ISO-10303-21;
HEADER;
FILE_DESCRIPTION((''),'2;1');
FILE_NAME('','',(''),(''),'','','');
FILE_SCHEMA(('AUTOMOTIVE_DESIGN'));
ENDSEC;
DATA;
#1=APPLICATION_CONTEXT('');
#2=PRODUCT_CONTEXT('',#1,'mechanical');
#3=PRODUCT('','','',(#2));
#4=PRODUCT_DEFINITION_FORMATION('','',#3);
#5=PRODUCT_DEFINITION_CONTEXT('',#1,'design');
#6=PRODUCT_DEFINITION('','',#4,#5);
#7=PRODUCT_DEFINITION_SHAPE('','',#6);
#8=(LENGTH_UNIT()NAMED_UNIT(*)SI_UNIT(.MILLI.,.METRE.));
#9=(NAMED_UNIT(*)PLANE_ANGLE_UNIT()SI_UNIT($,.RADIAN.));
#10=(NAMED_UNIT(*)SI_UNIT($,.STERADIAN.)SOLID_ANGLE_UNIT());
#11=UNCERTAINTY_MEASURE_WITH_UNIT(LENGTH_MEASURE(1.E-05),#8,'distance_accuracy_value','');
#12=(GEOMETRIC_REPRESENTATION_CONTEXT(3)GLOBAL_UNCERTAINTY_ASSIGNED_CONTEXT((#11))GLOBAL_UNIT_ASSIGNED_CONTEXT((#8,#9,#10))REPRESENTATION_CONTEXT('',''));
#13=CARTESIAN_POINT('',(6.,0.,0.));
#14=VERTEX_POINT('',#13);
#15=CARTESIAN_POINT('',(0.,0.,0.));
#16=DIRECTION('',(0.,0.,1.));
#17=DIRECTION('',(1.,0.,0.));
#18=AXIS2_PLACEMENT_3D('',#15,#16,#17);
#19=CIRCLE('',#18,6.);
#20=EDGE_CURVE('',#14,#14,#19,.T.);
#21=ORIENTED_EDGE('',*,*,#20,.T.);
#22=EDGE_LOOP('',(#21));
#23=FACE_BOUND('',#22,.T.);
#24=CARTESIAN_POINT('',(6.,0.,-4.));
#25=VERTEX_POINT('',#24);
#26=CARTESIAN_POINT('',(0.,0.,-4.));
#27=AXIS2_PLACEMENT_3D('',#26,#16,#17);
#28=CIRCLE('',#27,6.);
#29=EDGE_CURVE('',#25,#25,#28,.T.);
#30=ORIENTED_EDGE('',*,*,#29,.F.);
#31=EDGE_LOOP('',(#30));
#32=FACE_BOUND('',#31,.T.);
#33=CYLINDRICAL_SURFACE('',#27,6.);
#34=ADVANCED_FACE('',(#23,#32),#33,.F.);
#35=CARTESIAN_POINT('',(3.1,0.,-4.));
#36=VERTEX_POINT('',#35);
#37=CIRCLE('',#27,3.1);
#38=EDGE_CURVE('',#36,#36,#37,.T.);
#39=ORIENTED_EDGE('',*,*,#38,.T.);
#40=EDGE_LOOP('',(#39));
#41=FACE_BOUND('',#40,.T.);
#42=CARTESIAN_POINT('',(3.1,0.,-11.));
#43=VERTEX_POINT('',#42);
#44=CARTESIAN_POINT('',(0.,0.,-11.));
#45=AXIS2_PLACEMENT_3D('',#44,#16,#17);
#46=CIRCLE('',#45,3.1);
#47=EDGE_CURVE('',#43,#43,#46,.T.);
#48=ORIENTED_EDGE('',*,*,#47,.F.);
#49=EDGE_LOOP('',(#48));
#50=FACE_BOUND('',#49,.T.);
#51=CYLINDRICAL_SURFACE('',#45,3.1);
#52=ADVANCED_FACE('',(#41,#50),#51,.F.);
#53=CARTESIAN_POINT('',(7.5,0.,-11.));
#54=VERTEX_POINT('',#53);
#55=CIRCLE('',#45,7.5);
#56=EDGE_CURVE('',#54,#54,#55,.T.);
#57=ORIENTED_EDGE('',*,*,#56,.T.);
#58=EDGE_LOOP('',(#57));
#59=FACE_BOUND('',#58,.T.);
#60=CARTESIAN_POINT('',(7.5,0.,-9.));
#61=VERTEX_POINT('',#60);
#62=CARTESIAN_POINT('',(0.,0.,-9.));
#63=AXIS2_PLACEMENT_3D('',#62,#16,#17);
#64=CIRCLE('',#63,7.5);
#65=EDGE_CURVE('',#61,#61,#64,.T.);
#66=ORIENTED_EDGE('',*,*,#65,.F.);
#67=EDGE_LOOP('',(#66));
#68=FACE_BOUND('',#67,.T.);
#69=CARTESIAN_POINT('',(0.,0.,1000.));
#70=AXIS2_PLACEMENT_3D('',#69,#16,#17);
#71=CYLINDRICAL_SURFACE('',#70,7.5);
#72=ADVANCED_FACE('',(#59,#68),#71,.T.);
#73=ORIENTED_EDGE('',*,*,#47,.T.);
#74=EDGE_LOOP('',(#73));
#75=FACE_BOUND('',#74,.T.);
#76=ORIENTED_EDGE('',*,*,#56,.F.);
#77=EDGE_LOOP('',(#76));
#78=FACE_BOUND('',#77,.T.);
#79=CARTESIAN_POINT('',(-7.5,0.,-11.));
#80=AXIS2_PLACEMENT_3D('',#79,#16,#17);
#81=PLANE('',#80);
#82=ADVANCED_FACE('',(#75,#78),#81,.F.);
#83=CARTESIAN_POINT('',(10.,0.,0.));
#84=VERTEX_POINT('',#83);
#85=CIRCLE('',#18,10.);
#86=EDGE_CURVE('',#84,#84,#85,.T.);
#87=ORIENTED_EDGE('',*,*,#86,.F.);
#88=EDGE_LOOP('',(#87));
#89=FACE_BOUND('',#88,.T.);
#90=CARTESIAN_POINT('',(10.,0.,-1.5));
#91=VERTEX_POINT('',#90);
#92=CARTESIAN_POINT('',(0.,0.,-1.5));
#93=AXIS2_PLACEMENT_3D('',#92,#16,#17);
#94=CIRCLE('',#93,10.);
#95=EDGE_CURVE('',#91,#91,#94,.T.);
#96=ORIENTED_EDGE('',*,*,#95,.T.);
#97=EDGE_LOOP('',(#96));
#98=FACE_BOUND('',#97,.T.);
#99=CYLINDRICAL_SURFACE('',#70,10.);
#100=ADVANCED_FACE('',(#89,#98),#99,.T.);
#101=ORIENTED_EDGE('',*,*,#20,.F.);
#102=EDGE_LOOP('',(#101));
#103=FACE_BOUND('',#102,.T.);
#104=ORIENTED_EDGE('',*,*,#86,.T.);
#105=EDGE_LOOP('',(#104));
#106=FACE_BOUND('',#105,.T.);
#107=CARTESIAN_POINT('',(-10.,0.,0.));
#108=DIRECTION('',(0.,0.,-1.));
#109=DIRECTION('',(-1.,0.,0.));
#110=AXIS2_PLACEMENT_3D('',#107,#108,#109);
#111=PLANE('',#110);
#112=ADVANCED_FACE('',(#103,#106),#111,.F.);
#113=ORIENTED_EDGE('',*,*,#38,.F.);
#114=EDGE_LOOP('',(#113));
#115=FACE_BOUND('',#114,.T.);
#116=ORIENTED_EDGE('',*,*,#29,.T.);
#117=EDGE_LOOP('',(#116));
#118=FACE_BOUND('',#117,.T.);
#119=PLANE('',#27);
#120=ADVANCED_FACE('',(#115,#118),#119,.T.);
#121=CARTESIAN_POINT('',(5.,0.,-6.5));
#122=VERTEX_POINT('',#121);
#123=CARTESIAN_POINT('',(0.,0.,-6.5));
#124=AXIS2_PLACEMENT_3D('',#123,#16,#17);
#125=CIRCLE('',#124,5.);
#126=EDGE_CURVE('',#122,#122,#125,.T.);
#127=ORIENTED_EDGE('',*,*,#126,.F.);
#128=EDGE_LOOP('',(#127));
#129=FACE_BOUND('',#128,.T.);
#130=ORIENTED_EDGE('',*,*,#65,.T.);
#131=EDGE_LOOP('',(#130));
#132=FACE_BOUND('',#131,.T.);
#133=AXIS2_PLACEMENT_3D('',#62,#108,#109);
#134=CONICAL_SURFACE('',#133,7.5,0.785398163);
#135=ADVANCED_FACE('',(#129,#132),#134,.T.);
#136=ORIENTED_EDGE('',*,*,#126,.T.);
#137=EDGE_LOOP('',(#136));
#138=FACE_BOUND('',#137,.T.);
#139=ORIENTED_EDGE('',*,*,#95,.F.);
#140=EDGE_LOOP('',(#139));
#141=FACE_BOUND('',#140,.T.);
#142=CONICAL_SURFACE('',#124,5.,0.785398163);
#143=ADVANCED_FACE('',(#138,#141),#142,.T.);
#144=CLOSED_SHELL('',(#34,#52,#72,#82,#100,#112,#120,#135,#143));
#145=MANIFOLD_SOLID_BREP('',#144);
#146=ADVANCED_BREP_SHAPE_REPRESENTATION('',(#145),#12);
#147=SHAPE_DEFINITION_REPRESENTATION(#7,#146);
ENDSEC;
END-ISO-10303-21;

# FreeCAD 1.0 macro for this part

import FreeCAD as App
import Part
import Sketcher
Q = App.Units.Quantity

doc = App.newDocument("Part")
body = doc.addObject("PartDesign::Body", "Body")

# Sketch on XZ plane
sketch1 = doc.addObject("Sketcher::SketchObject", "Sketch")
body.addObject(sketch1)
sketch1.AttachmentSupport = (doc.XZ_Plane, [""])
sketch1.MapMode = "FlatFace"
sketch1.addGeometry(Part.LineSegment(App.Vector(-7.5, -9, 0), App.Vector(-5, -6.5, 0)), False)
sketch1.addGeometry(Part.LineSegment(App.Vector(-5, -6.5, 0), App.Vector(-10, -1.5, 0)), False)
sketch1.addGeometry(Part.LineSegment(App.Vector(-10, -1.5, 0), App.Vector(-10, 0, 0)), False)
sketch1.addGeometry(Part.LineSegment(App.Vector(-10, 0, 0), App.Vector(0, 0, 0)), False)
sketch1.addGeometry(Part.LineSegment(App.Vector(0, 0, 0), App.Vector(0, -11, 0)), False)
sketch1.addGeometry(Part.LineSegment(App.Vector(0, -11, 0), App.Vector(-7.5, -11, 0)), False)
sketch1.addGeometry(Part.LineSegment(App.Vector(-7.5, -11, 0), App.Vector(-7.5, -9, 0)), False)
sketch1.addConstraint(Sketcher.Constraint("Coincident", 0, 2, 1, 1))
sketch1.addConstraint(Sketcher.Constraint("Coincident", 1, 2, 2, 1))
sketch1.addConstraint(Sketcher.Constraint("Coincident", 2, 2, 3, 1))
sketch1.addConstraint(Sketcher.Constraint("Coincident", 3, 2, 4, 1))
sketch1.addConstraint(Sketcher.Constraint("Coincident", 4, 2, 5, 1))
sketch1.addConstraint(Sketcher.Constraint("Coincident", 5, 2, 6, 1))
sketch1.addConstraint(Sketcher.Constraint("Coincident", 6, 2, 0, 1))
sketch1.addConstraint(Sketcher.Constraint("Vertical", 2))
sketch1.addConstraint(Sketcher.Constraint("Horizontal", 3))
sketch1.addConstraint(Sketcher.Constraint("Vertical", 4))
sketch1.addConstraint(Sketcher.Constraint("Horizontal", 5))
sketch1.addConstraint(Sketcher.Constraint("Vertical", 6))
sketch1.addConstraint(Sketcher.Constraint("Coincident", 3, 2, -1, 1))
sketch1.addConstraint(Sketcher.Constraint("Perpendicular", 0, 1))
sketch1.addConstraint(Sketcher.Constraint("DistanceX", 3, 1, 3, 2, Q("10 mm")))
sketch1.addConstraint(Sketcher.Constraint("DistanceY", 4, 2, 4, 1, Q("11 mm")))
sketch1.addConstraint(Sketcher.Constraint("DistanceY", 6, 1, 6, 2, Q("2 mm")))
sketch1.addConstraint(Sketcher.Constraint("Angle", 0, Q("45 deg")))
sketch1.addConstraint(Sketcher.Constraint("DistanceX", 5, 2, 5, 1, Q("7.5 mm")))
sketch1.addConstraint(Sketcher.Constraint("DistanceY", 2, 1, 2, 2, Q("1.5 mm")))
revolution = doc.addObject("PartDesign::Revolution", "Revolution")
body.addObject(revolution)
revolution.Profile = sketch1
revolution.ReferenceAxis = (sketch1, ["V_Axis"])
revolution.Angle = 360

# Sketch on XY plane
sketch2 = doc.addObject("Sketcher::SketchObject", "Sketch001")
body.addObject(sketch2)
sketch2.AttachmentSupport = (doc.XY_Plane, [""])
sketch2.MapMode = "FlatFace"
sketch2.addGeometry(Part.Circle(App.Vector(0, 0, 0), App.Vector(0, 0, 1), 6), False)
sketch2.addConstraint(Sketcher.Constraint("Coincident", 0, 3, -1, 1))
sketch2.addConstraint(Sketcher.Constraint("Diameter", 0, Q("12 mm")))
pocket1 = doc.addObject("PartDesign::Pocket", "Pocket")
body.addObject(pocket1)
pocket1.Profile = sketch2
pocket1.Length = 4

# Sketch on XY plane
sketch3 = doc.addObject("Sketcher::SketchObject", "Sketch002")
body.addObject(sketch3)
sketch3.AttachmentSupport = (doc.XY_Plane, [""])
sketch3.MapMode = "FlatFace"
sketch3.AttachmentOffset = App.Placement(App.Vector(0, 0, -4), App.Rotation())
sketch3.addGeometry(Part.Circle(App.Vector(0, 0, 0), App.Vector(0, 0, 1), 3.1), False)
sketch3.addConstraint(Sketcher.Constraint("Coincident", 0, 3, -1, 1))
sketch3.addConstraint(Sketcher.Constraint("Diameter", 0, Q("6.2 mm")))
pocket2 = doc.addObject("PartDesign::Pocket", "Pocket001")
body.addObject(pocket2)
pocket2.Profile = sketch3
pocket2.Type = "ThroughAll"

doc.recompute()
